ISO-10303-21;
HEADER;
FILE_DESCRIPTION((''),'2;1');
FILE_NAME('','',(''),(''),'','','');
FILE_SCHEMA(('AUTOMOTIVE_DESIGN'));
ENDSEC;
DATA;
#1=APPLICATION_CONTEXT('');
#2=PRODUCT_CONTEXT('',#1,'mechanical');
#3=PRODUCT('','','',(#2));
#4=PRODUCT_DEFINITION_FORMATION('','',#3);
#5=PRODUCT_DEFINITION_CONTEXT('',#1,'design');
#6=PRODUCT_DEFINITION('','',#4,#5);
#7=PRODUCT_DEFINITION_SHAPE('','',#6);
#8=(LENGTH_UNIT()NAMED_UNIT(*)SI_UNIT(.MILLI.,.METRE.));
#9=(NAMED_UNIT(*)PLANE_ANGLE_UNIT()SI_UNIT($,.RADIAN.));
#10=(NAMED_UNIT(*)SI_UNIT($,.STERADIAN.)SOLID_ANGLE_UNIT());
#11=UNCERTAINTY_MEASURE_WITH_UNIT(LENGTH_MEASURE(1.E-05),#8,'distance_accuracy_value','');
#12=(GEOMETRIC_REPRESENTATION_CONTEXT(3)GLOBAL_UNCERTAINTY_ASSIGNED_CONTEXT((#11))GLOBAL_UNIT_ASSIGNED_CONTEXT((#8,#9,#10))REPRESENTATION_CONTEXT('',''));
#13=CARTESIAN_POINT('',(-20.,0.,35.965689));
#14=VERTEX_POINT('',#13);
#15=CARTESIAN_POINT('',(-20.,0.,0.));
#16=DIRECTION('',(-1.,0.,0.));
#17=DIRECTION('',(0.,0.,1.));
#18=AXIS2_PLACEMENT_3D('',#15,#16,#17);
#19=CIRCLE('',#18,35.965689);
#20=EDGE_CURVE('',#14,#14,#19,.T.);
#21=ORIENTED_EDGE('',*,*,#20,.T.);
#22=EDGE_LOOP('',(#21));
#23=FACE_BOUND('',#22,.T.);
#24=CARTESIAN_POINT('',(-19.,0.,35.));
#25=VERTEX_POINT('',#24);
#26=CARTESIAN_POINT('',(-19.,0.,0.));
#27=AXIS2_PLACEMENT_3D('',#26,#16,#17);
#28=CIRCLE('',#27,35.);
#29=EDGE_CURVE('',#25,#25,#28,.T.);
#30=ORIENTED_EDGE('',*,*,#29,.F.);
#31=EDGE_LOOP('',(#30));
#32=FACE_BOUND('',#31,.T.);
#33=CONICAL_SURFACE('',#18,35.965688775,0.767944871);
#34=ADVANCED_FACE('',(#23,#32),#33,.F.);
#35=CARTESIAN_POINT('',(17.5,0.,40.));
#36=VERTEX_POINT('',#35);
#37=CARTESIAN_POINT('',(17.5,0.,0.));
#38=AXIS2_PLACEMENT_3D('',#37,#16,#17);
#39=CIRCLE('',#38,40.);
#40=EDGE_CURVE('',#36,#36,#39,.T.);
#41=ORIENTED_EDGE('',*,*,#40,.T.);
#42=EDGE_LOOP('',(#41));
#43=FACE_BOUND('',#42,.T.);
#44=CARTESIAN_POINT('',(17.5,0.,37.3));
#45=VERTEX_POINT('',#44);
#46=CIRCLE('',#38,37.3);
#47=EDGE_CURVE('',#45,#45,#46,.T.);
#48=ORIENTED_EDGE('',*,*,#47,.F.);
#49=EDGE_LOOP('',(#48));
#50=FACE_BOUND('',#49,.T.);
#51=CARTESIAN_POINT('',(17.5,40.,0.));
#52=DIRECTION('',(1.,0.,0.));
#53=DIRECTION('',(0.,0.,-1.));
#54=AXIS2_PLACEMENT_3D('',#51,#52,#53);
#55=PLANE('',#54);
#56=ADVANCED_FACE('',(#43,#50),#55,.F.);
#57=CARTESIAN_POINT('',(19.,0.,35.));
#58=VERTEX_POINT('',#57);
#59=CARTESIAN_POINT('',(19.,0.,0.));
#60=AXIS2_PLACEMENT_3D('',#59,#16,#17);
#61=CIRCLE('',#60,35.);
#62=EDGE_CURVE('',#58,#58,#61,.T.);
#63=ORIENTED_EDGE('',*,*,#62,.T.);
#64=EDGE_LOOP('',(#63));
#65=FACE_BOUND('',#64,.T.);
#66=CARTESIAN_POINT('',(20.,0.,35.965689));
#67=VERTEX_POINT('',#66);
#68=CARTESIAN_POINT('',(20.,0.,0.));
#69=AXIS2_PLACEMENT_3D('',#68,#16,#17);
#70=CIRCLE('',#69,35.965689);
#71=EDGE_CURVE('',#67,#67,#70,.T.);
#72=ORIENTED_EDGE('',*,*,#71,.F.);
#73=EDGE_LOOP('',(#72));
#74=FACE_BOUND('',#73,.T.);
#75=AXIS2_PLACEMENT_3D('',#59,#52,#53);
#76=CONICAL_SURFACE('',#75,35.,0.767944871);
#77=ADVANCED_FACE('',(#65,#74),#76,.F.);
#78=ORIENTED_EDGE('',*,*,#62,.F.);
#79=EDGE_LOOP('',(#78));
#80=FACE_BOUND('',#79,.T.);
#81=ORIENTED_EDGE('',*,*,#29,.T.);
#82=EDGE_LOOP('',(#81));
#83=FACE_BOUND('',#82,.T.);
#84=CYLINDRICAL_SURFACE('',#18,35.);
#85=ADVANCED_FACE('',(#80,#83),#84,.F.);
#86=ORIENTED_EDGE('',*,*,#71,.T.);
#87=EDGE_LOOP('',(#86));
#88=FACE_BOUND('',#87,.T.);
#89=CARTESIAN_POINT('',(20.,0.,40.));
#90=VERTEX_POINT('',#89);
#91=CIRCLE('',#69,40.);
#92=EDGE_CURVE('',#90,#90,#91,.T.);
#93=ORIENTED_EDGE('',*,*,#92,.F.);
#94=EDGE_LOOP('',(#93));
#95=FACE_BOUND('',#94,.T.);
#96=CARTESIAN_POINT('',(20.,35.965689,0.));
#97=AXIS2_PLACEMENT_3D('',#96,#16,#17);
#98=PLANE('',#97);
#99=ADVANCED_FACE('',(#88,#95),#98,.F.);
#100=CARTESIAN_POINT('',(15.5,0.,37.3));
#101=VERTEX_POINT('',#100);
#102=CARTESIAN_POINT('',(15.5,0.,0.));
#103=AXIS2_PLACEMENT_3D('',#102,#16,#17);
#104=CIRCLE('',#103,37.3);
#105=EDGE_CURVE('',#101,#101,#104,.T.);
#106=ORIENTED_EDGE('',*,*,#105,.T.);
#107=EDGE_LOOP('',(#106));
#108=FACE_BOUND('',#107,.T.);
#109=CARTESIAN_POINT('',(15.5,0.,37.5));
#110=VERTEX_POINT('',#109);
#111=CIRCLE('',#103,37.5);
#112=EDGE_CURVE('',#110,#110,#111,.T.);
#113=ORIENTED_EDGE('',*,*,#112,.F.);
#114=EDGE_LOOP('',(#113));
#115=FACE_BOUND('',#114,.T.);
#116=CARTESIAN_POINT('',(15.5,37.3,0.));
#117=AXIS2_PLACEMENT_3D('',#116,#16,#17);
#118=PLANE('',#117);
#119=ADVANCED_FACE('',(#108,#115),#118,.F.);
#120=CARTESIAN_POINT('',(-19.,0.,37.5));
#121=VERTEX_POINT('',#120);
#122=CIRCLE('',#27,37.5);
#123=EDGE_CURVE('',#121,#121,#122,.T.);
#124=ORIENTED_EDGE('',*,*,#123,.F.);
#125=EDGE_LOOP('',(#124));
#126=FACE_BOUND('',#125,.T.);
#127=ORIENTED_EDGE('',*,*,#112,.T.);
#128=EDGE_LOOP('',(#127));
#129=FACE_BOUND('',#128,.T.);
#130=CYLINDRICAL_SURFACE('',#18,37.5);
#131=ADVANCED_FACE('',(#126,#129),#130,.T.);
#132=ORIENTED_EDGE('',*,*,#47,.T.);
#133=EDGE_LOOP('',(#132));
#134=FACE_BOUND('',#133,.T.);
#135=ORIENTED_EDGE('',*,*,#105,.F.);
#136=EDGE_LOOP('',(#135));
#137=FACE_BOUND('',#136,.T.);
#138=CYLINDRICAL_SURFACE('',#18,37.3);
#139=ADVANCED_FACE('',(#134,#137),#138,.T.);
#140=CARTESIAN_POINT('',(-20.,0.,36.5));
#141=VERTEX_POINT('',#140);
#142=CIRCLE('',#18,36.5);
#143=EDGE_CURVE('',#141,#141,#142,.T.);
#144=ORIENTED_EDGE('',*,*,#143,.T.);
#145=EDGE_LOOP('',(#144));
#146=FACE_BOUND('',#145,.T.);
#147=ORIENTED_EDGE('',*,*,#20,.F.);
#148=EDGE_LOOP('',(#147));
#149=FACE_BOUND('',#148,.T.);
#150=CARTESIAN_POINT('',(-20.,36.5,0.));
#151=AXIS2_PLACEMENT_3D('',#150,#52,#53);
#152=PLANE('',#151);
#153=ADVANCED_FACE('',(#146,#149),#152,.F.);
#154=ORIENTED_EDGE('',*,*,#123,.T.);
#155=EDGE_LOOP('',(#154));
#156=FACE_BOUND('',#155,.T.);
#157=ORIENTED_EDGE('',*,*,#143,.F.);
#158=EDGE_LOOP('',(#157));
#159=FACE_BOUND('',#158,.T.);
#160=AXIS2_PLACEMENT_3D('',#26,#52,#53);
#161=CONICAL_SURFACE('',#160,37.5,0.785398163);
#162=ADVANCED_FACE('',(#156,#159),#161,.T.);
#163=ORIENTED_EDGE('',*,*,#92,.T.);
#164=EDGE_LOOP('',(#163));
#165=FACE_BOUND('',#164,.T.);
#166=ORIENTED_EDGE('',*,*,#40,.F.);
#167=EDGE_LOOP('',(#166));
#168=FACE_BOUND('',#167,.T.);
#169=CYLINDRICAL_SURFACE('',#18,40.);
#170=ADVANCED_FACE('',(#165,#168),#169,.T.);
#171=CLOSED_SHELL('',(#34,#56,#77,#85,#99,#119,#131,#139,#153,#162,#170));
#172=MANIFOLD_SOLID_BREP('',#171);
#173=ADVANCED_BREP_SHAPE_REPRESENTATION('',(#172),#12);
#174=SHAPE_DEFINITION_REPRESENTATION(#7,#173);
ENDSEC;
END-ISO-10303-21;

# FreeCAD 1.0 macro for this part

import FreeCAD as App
import Part
import Sketcher

V = App.Vector
Q = App.Units.Quantity


def add_polygon(sketch, points):
    """Adds a closed chain of lines whose ends are joined by coincident constraints."""
    first, n = sketch.GeometryCount, len(points)
    for a, b in zip(points, points[1:] + points[:1]):
        sketch.addGeometry(Part.LineSegment(App.Vector(*a, 0), App.Vector(*b, 0)), False)
    for i in range(n):
        sketch.addConstraint(Sketcher.Constraint("Coincident", first + i, 2, first + (i + 1) % n, 1))

doc = App.newDocument("Part")
body = doc.addObject("PartDesign::Body", "Body")

sketch1 = body.newObject("Sketcher::SketchObject", "Sketch")
sketch1.AttachmentSupport = (doc.getObject("XY_Plane"), [""])
sketch1.MapMode = "FlatFace"
add_polygon(sketch1, [(-20, 35.97), (-19, 35), (19, 35), (20, 35.97), (20, 40), (17.5, 40), (17.5, 37.3), (15.5, 37.3), (15.5, 37.5), (-19, 37.5), (-20, 36.5)])
sketch1.addConstraint([
    Sketcher.Constraint("Horizontal", 1),
    Sketcher.Constraint("Vertical", 3),
    Sketcher.Constraint("Horizontal", 4),
    Sketcher.Constraint("Vertical", 5),
    Sketcher.Constraint("Horizontal", 6),
    Sketcher.Constraint("Vertical", 7),
    Sketcher.Constraint("Horizontal", 8),
    Sketcher.Constraint("Vertical", 10),
    Sketcher.Constraint("Symmetric", 2, 2, 10, 2, -2),
    Sketcher.Constraint("Vertical", 0, 2, 8, 2),
    Sketcher.Constraint("Equal", 0, 2),
    Sketcher.Constraint("DistanceX", 1, 1, 1, 2, 38.0),
    Sketcher.Constraint("DistanceX", 6, 2, 6, 1, 2.0),
    Sketcher.Constraint("Angle", 0, Q("-44 deg")),
    Sketcher.Constraint("Angle", 9, Q("-135 deg")),
    Sketcher.Constraint("DistanceX", 4, 2, 4, 1, 2.5),
    Sketcher.Constraint("DistanceX", 8, 2, 8, 1, 34.5),
    Sketcher.Constraint("DistanceY", 5, 2, 5, 1, 2.7),
    Sketcher.Constraint("DistanceY", 7, 1, 7, 2, 0.2),
    Sketcher.Constraint("DistanceY", -1, 1, 0, 2, 35.0),
    Sketcher.Constraint("DistanceY", -1, 1, 3, 2, 40.0),
])
revolution = body.newObject("PartDesign::Revolution", "Revolution")
revolution.Profile = sketch1
revolution.ReferenceAxis = (sketch1, ["H_Axis"])
revolution.Angle = 360

doc.recompute()
